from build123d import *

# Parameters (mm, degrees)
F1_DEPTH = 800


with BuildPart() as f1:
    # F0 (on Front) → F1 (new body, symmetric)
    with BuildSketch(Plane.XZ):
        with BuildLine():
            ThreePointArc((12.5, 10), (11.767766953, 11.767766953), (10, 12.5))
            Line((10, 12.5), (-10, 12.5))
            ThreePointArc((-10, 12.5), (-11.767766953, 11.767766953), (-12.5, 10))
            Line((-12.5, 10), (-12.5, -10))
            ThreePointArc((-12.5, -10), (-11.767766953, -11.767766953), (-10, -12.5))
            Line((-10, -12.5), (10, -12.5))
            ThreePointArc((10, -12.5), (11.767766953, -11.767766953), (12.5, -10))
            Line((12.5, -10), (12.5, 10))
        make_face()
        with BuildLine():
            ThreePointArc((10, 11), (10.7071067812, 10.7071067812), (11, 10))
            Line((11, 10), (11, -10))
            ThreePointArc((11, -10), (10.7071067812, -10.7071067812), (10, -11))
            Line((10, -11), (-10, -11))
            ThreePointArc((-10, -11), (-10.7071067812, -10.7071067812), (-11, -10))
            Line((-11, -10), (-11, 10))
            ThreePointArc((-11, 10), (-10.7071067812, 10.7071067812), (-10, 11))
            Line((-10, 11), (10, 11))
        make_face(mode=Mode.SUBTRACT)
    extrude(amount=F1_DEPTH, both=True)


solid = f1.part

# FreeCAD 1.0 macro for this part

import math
import FreeCAD as App
import Part
import Sketcher

V = App.Vector

doc = App.newDocument("Part")
body = doc.addObject("PartDesign::Body", "Body")

# Sketch on XZ plane
sketch1 = body.newObject("Sketcher::SketchObject", "Sketch")
sketch1.AttachmentSupport = (doc.getObject("XZ_Plane"), [""])
sketch1.MapMode = "FlatFace"
sketch1.addGeometry(Part.ArcOfCircle(Part.Circle(V(10, 10, 0), V(0, 0, 1), 2.5), math.radians(0), math.radians(90)), False)
sketch1.addGeometry(Part.LineSegment(V(10, 12.5, 0), V(-10, 12.5, 0)), False)
sketch1.addGeometry(Part.ArcOfCircle(Part.Circle(V(-10, 10, 0), V(0, 0, 1), 2.5), math.radians(90), math.radians(180)), False)
sketch1.addGeometry(Part.LineSegment(V(-12.5, 10, 0), V(-12.5, -10, 0)), False)
sketch1.addGeometry(Part.ArcOfCircle(Part.Circle(V(-10, -10, 0), V(0, 0, 1), 2.5), math.radians(180), math.radians(270)), False)
sketch1.addGeometry(Part.LineSegment(V(-10, -12.5, 0), V(10, -12.5, 0)), False)
sketch1.addGeometry(Part.ArcOfCircle(Part.Circle(V(10, -10, 0), V(0, 0, 1), 2.5), math.radians(-90), math.radians(0)), False)
sketch1.addGeometry(Part.LineSegment(V(12.5, -10, 0), V(12.5, 10, 0)), False)
sketch1.addGeometry(Part.LineSegment(V(-10, 11, 0), V(10, 11, 0)), False)
sketch1.addGeometry(Part.ArcOfCircle(Part.Circle(V(10, 10, 0), V(0, 0, 1), 1), math.radians(0), math.radians(90)), False)
sketch1.addGeometry(Part.LineSegment(V(11, 10, 0), V(11, -10, 0)), False)
sketch1.addGeometry(Part.ArcOfCircle(Part.Circle(V(10, -10, 0), V(0, 0, 1), 1), math.radians(-90), math.radians(0)), False)
sketch1.addGeometry(Part.LineSegment(V(10, -11, 0), V(-10, -11, 0)), False)
sketch1.addGeometry(Part.ArcOfCircle(Part.Circle(V(-10, -10, 0), V(0, 0, 1), 1), math.radians(180), math.radians(270)), False)
sketch1.addGeometry(Part.LineSegment(V(-11, -10, 0), V(-11, 10, 0)), False)
sketch1.addGeometry(Part.ArcOfCircle(Part.Circle(V(-10, 10, 0), V(0, 0, 1), 1), math.radians(90), math.radians(180)), False)
sketch1.addConstraint(Sketcher.Constraint("Tangent", 0, 2, 1, 1))
sketch1.addConstraint(Sketcher.Constraint("Tangent", 1, 2, 2, 1))
sketch1.addConstraint(Sketcher.Constraint("Tangent", 2, 2, 3, 1))
sketch1.addConstraint(Sketcher.Constraint("Tangent", 3, 2, 4, 1))
sketch1.addConstraint(Sketcher.Constraint("Tangent", 4, 2, 5, 1))
sketch1.addConstraint(Sketcher.Constraint("Tangent", 5, 2, 6, 1))
sketch1.addConstraint(Sketcher.Constraint("Tangent", 6, 2, 7, 1))
sketch1.addConstraint(Sketcher.Constraint("Tangent", 7, 2, 0, 1))
sketch1.addConstraint(Sketcher.Constraint("Tangent", 8, 2, 9, 2))
sketch1.addConstraint(Sketcher.Constraint("Tangent", 9, 1, 10, 1))
sketch1.addConstraint(Sketcher.Constraint("Tangent", 10, 2, 11, 2))
sketch1.addConstraint(Sketcher.Constraint("Tangent", 11, 1, 12, 1))
sketch1.addConstraint(Sketcher.Constraint("Tangent", 12, 2, 13, 2))
sketch1.addConstraint(Sketcher.Constraint("Tangent", 13, 1, 14, 1))
sketch1.addConstraint(Sketcher.Constraint("Tangent", 14, 2, 15, 2))
sketch1.addConstraint(Sketcher.Constraint("Tangent", 15, 1, 8, 1))
sketch1.addConstraint(Sketcher.Constraint("Horizontal", 1))
sketch1.addConstraint(Sketcher.Constraint("Vertical", 3))
sketch1.addConstraint(Sketcher.Constraint("Horizontal", 5))
sketch1.addConstraint(Sketcher.Constraint("Vertical", 7))
sketch1.addConstraint(Sketcher.Constraint("Horizontal", 8))
sketch1.addConstraint(Sketcher.Constraint("Vertical", 10))
sketch1.addConstraint(Sketcher.Constraint("Horizontal", 12))
sketch1.addConstraint(Sketcher.Constraint("Vertical", 14))
sketch1.addConstraint(Sketcher.Constraint("Coincident", 9, 3, 0, 3))
sketch1.addConstraint(Sketcher.Constraint("Coincident", 11, 3, 6, 3))
sketch1.addConstraint(Sketcher.Constraint("Coincident", 13, 3, 4, 3))
sketch1.addConstraint(Sketcher.Constraint("Equal", 0, 2))
sketch1.addConstraint(Sketcher.Constraint("Equal", 2, 4))
sketch1.addConstraint(Sketcher.Constraint("Equal", 4, 6))
sketch1.addConstraint(Sketcher.Constraint("Equal", 13, 15))
sketch1.addConstraint(Sketcher.Constraint("Symmetric", 0, 3, 4, 3, -1, 1))
sketch1.addConstraint(Sketcher.Constraint("Equal", 12, 3))
sketch1.addConstraint(Sketcher.Constraint("Radius", 9, 1.0))
sketch1.addConstraint(Sketcher.Constraint("Radius", 0, 2.5))
sketch1.addConstraint(Sketcher.Constraint("DistanceX", 1, 2, 1, 1, 20.0))
pad1 = body.newObject("PartDesign::Pad", "Pad")
pad1.Profile = sketch1
pad1.Length = 1600
pad1.Midplane = True

doc.recompute()
